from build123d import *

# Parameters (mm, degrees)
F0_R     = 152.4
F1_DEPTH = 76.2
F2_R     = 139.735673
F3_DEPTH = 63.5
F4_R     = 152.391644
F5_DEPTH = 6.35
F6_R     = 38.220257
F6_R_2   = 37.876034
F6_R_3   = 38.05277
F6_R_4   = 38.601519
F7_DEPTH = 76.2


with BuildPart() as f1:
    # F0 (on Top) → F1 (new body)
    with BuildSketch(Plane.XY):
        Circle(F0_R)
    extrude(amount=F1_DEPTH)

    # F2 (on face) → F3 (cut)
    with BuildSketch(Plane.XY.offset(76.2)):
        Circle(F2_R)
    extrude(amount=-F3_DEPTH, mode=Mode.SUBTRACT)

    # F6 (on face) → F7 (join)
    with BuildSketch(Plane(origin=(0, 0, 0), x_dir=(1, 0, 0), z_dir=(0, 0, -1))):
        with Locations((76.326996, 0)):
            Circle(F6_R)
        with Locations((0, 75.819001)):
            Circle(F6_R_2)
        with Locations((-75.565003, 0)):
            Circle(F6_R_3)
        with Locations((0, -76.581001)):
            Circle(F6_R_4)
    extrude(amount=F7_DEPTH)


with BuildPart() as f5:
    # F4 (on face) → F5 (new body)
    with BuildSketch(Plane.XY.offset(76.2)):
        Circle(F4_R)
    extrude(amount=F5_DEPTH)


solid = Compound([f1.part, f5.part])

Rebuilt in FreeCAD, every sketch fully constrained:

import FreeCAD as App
import Part
import Sketcher
Q = App.Units.Quantity

doc = App.newDocument("Part")
body = doc.addObject("PartDesign::Body", "Body")

sketch1 = doc.addObject("Sketcher::SketchObject", "Sketch")
body.addObject(sketch1)
sketch1.AttachmentSupport = (doc.XY_Plane, [""])
sketch1.MapMode = "FlatFace"
sketch1.addGeometry(Part.Circle(App.Vector(0, 0, 0), App.Vector(0, 0, 1), 152), False)
sketch1.addConstraint([
    Sketcher.Constraint("Coincident", 0, 3, -1, 1),
    Sketcher.Constraint("Diameter", 0, Q("12 in")),
])
pad1 = doc.addObject("PartDesign::Pad", "Pad")
body.addObject(pad1)
pad1.Profile = sketch1
pad1.Length = Q("3 in")

sketch2 = doc.addObject("Sketcher::SketchObject", "Sketch001")
body.addObject(sketch2)
sketch2.AttachmentSupport = (doc.XY_Plane, [""])
sketch2.MapMode = "FlatFace"
sketch2.AttachmentOffset = App.Placement(App.Vector(0, 0, 3 * 25.4), App.Rotation())
sketch2.addGeometry(Part.Circle(App.Vector(0, 0, 0), App.Vector(0, 0, 1), 140), False)
sketch2.addConstraint([
    Sketcher.Constraint("Coincident", 0, 3, -1, 1),
    Sketcher.Constraint("Diameter", 0, Q("279.471346 mm")),
])
pocket1 = doc.addObject("PartDesign::Pocket", "Pocket")
body.addObject(pocket1)
pocket1.Profile = sketch2
pocket1.Length = Q("2.5 in")

sketch3 = doc.addObject("Sketcher::SketchObject", "Sketch002")
body.addObject(sketch3)
sketch3.AttachmentSupport = (doc.XY_Plane, [""])
sketch3.MapMode = "FlatFace"
sketch3.addGeometry([
    Part.Circle(App.Vector(76, 0, 0), App.Vector(0, 0, 1), 38),
    Part.Circle(App.Vector(0, -76, 0), App.Vector(0, 0, 1), 38),
    Part.Circle(App.Vector(-76, 0, 0), App.Vector(0, 0, 1), 38),
    Part.Circle(App.Vector(0, 77, 0), App.Vector(0, 0, 1), 39),
], False)
sketch3.addConstraint([
    Sketcher.Constraint("PointOnObject", 0, 3, -1),
    Sketcher.Constraint("PointOnObject", 1, 3, -2),
    Sketcher.Constraint("PointOnObject", 2, 3, -1),
    Sketcher.Constraint("PointOnObject", 3, 3, -2),
    Sketcher.Constraint("DistanceY", 1, 3, 3, 3, Q("6.0000001 in")),
    Sketcher.Constraint("DistanceX", 2, 3, 0, 3, Q("5.98 in")),
    Sketcher.Constraint("Diameter", 2, Q("76.10554 mm")),
    Sketcher.Constraint("Diameter", 3, Q("77.203038 mm")),
    Sketcher.Constraint("DistanceX", -1, 1, 0, 3, Q("3.0049998 in")),
    Sketcher.Constraint("DistanceY", 1, 3, -1, 1, Q("2.985 in")),
    Sketcher.Constraint("Diameter", 0, Q("76.440514 mm")),
    Sketcher.Constraint("Diameter", 1, Q("75.752068 mm")),
])
pad2 = doc.addObject("PartDesign::Pad", "Pad001")
body.addObject(pad2)
pad2.Profile = sketch3
pad2.Length = Q("3 in")
pad2.Reversed = True
body2 = doc.addObject("PartDesign::Body", "Body001")

sketch4 = doc.addObject("Sketcher::SketchObject", "Sketch003")
body2.addObject(sketch4)
sketch4.AttachmentSupport = (doc.getObject("XY_Plane001"), [""])
sketch4.MapMode = "FlatFace"
sketch4.AttachmentOffset = App.Placement(App.Vector(0, 0, 3 * 25.4), App.Rotation())
sketch4.addGeometry(Part.Circle(App.Vector(0, 0, 0), App.Vector(0, 0, 1), 152), False)
sketch4.addConstraint([
    Sketcher.Constraint("Coincident", 0, 3, -1, 1),
    Sketcher.Constraint("Diameter", 0, Q("304.783288 mm")),
])
pad3 = doc.addObject("PartDesign::Pad", "Pad002")
body2.addObject(pad3)
pad3.Profile = sketch4
pad3.Length = Q("0.25 in")

doc.recompute()
